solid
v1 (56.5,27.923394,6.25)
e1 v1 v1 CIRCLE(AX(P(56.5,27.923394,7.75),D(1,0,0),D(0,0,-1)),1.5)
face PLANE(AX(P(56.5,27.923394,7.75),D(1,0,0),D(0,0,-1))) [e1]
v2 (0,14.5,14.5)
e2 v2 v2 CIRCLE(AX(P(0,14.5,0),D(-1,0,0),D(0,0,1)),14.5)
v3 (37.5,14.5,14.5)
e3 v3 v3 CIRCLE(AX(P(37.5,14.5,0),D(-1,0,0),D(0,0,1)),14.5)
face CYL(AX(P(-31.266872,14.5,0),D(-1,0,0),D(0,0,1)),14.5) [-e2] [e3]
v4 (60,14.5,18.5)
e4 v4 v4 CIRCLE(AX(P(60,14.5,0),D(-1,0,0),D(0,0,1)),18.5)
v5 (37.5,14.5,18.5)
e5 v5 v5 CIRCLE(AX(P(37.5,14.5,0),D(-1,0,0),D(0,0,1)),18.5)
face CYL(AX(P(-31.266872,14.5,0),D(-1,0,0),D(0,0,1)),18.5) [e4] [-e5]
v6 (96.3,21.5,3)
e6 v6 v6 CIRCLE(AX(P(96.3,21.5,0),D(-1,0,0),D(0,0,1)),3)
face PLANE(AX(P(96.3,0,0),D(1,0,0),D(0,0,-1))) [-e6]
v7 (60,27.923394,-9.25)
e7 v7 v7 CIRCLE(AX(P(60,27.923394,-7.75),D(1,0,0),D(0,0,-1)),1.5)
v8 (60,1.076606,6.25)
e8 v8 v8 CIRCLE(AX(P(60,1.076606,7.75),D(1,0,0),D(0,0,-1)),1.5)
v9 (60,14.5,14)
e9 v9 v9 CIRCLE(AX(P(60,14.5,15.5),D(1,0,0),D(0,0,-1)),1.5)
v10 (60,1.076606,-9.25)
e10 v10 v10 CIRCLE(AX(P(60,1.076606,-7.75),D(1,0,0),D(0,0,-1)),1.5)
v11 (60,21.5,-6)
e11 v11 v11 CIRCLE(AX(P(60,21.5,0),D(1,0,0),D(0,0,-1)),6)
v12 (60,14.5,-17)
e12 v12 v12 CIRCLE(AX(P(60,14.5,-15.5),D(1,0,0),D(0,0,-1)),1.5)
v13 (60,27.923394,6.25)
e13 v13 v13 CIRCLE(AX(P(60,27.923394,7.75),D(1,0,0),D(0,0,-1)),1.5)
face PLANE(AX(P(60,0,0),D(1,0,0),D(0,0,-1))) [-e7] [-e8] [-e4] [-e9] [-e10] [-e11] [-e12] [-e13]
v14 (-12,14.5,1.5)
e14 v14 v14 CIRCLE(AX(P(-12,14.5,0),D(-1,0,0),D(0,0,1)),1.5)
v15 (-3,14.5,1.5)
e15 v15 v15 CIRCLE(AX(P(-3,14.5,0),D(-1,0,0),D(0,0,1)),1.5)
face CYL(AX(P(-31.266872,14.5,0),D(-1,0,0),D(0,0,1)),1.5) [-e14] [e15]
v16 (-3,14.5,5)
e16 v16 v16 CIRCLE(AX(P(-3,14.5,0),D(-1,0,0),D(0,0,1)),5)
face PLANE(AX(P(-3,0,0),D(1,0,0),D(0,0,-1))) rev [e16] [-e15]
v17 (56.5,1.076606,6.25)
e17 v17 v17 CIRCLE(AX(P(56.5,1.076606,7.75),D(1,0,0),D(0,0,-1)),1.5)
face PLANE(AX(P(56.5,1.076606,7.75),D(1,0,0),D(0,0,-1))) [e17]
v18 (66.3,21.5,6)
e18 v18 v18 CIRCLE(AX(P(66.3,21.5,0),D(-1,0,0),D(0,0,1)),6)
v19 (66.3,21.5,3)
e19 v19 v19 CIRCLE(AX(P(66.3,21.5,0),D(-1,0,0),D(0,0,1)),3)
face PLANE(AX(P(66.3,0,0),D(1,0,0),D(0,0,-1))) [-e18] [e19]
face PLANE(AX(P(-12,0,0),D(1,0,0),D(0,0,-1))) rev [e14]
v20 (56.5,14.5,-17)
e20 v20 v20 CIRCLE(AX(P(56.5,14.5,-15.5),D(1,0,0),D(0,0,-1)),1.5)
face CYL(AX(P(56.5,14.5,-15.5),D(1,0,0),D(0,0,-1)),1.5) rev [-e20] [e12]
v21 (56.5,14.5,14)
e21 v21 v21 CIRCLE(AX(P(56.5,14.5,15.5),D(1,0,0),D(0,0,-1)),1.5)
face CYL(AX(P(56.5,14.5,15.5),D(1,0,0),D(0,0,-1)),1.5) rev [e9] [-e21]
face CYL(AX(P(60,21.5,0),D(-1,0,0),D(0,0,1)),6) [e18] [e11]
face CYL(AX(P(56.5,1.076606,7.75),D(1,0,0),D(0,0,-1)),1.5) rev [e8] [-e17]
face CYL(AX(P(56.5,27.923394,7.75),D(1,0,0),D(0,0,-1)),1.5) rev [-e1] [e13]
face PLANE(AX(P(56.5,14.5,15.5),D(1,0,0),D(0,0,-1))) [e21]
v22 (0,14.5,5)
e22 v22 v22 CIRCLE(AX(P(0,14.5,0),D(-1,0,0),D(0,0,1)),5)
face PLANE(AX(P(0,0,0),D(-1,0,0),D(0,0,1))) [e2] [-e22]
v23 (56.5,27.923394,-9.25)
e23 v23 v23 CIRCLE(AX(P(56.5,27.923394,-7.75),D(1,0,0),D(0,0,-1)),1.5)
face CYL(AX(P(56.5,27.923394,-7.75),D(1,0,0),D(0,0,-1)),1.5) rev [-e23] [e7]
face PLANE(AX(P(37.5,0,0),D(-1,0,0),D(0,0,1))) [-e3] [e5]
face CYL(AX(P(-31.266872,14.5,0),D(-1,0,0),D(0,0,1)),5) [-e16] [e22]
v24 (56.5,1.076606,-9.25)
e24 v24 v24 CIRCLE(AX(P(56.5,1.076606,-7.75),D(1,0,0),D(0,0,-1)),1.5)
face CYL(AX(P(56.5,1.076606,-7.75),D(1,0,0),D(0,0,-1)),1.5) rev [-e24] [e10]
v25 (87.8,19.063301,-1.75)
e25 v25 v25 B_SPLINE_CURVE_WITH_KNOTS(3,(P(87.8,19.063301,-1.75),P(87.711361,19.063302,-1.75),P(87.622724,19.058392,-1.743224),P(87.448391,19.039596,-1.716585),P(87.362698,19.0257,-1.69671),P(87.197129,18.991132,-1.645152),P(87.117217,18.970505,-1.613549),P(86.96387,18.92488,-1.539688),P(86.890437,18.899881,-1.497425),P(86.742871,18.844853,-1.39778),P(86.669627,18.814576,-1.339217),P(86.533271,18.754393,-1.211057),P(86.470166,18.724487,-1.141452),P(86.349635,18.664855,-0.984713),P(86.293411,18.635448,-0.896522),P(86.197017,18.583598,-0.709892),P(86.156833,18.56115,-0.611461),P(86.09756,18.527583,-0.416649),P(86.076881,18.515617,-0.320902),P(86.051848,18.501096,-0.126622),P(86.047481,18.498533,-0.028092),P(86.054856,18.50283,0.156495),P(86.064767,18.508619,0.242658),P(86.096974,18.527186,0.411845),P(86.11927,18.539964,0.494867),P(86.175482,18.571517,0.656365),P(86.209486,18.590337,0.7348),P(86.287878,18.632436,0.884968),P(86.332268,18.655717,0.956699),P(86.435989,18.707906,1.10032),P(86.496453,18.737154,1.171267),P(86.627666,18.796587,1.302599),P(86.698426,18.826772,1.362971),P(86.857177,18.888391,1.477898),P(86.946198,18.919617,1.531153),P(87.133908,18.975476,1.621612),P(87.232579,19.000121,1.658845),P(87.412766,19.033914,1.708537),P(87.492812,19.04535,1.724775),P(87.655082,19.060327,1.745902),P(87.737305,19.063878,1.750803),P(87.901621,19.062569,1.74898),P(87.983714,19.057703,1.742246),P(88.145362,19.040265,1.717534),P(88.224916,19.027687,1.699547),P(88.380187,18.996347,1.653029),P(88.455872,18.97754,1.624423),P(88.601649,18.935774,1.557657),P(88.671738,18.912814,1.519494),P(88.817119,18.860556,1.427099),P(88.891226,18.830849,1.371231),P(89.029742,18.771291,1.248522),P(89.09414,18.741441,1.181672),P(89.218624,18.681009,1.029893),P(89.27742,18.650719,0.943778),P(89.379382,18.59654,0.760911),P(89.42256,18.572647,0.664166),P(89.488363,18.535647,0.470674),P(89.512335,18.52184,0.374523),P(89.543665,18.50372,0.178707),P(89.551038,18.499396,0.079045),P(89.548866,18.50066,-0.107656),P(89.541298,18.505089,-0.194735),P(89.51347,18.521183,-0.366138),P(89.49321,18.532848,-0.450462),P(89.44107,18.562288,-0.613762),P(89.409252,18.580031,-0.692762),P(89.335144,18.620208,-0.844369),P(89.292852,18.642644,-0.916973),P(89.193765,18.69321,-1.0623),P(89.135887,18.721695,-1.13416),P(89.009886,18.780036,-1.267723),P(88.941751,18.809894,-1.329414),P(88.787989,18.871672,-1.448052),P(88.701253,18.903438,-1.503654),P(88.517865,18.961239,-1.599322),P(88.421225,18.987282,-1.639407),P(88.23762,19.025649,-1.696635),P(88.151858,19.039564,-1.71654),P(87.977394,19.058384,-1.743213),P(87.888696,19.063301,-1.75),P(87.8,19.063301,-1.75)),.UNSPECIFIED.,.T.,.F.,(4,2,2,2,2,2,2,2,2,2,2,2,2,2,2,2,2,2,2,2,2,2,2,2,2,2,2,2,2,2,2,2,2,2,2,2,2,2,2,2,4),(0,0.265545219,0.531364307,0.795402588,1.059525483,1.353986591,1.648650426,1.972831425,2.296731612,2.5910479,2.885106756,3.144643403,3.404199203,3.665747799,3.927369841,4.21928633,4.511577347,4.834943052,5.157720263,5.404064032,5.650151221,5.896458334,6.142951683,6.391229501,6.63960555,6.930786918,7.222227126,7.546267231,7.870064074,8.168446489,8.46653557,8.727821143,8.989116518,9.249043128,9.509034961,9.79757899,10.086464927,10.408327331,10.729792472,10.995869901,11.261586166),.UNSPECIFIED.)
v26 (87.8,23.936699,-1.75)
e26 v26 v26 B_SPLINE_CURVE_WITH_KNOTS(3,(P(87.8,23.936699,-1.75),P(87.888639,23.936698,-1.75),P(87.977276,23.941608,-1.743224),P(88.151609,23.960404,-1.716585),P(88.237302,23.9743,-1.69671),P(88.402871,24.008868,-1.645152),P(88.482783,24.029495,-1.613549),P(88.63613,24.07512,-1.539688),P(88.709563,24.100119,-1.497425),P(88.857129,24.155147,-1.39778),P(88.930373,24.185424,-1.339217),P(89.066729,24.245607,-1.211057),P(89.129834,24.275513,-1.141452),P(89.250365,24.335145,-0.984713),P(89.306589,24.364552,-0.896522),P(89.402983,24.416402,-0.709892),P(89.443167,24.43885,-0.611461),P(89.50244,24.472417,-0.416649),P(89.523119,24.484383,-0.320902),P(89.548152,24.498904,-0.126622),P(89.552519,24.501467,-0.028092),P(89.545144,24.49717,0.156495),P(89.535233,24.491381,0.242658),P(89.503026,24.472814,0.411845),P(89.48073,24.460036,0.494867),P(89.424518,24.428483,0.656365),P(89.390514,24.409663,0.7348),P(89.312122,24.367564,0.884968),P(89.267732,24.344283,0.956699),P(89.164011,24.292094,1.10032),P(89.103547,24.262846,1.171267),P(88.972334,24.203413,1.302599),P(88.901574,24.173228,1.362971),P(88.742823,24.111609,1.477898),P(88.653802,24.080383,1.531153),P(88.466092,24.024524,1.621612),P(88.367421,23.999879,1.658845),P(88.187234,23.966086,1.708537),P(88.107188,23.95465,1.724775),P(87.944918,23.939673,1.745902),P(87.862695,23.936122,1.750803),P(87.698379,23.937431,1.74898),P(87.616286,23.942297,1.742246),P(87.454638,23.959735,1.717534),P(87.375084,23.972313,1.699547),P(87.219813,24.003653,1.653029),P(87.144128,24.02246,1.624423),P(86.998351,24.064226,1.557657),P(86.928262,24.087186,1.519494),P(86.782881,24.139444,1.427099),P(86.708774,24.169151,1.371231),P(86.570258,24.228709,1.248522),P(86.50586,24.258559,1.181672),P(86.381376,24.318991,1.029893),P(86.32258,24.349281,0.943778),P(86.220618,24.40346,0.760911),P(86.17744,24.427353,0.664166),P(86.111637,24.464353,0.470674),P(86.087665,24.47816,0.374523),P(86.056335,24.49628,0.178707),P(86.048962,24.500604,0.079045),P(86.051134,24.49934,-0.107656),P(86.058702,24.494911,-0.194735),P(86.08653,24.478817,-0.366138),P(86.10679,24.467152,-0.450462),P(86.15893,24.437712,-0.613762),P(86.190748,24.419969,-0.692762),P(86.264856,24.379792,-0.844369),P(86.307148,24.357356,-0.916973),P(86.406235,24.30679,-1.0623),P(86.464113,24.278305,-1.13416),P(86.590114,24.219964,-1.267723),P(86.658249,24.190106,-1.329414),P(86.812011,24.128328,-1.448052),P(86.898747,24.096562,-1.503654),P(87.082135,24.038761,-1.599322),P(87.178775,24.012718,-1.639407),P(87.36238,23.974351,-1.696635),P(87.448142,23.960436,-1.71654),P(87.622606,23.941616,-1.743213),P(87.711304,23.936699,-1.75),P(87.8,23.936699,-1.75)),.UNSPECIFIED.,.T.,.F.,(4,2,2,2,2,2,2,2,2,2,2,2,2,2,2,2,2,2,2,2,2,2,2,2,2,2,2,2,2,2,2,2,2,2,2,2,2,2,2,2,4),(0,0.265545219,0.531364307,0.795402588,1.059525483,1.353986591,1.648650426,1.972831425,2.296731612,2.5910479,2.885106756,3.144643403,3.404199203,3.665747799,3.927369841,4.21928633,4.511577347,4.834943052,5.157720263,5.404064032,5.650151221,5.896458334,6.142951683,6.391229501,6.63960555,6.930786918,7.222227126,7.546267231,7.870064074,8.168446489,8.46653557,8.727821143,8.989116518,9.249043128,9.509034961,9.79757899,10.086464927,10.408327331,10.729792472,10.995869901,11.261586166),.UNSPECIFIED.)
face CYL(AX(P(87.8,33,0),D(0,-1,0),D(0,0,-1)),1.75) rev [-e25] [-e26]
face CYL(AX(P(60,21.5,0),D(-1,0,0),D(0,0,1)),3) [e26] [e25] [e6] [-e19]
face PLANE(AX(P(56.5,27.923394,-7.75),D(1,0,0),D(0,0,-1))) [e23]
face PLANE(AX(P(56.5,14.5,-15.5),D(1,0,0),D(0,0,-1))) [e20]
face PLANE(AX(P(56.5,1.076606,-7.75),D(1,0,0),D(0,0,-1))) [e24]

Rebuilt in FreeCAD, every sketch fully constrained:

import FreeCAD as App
import Part
import Sketcher

doc = App.newDocument("Part")
body = doc.addObject("PartDesign::Body", "Body")

# Sketch on XY plane
sketch1 = doc.addObject("Sketcher::SketchObject", "Sketch")
body.addObject(sketch1)
sketch1.AttachmentSupport = (doc.XY_Plane, [""])
sketch1.MapMode = "FlatFace"
sketch1.addGeometry(Part.LineSegment(App.Vector(60, 14.5, 0), App.Vector(60, 33, 0)), False)
sketch1.addGeometry(Part.LineSegment(App.Vector(60, 33, 0), App.Vector(37.5, 33, 0)), False)
sketch1.addGeometry(Part.LineSegment(App.Vector(37.5, 33, 0), App.Vector(37.5, 29, 0)), False)
sketch1.addGeometry(Part.LineSegment(App.Vector(37.5, 29, 0), App.Vector(0, 29, 0)), False)
sketch1.addGeometry(Part.LineSegment(App.Vector(0, 29, 0), App.Vector(0, 19.5, 0)), False)
sketch1.addGeometry(Part.LineSegment(App.Vector(0, 19.5, 0), App.Vector(-3, 19.5, 0)), False)
sketch1.addGeometry(Part.LineSegment(App.Vector(-3, 19.5, 0), App.Vector(-3, 16, 0)), False)
sketch1.addGeometry(Part.LineSegment(App.Vector(-3, 16, 0), App.Vector(-12, 16, 0)), False)
sketch1.addGeometry(Part.LineSegment(App.Vector(-12, 16, 0), App.Vector(-12, 14.5, 0)), False)
sketch1.addGeometry(Part.LineSegment(App.Vector(-12, 14.5, 0), App.Vector(60, 14.5, 0)), False)
sketch1.addGeometry(Part.LineSegment(App.Vector(-12, 14.5, 0), App.Vector(60, 14.5, 0)), True)  # axis
sketch1.addConstraint(Sketcher.Constraint("Coincident", 0, 2, 1, 1))
sketch1.addConstraint(Sketcher.Constraint("Coincident", 1, 2, 2, 1))
sketch1.addConstraint(Sketcher.Constraint("Coincident", 2, 2, 3, 1))
sketch1.addConstraint(Sketcher.Constraint("Coincident", 3, 2, 4, 1))
sketch1.addConstraint(Sketcher.Constraint("Coincident", 4, 2, 5, 1))
sketch1.addConstraint(Sketcher.Constraint("Coincident", 5, 2, 6, 1))
sketch1.addConstraint(Sketcher.Constraint("Coincident", 6, 2, 7, 1))
sketch1.addConstraint(Sketcher.Constraint("Coincident", 7, 2, 8, 1))
sketch1.addConstraint(Sketcher.Constraint("Coincident", 8, 2, 9, 1))
sketch1.addConstraint(Sketcher.Constraint("Coincident", 9, 2, 0, 1))
sketch1.addConstraint(Sketcher.Constraint("Vertical", 0))
sketch1.addConstraint(Sketcher.Constraint("Horizontal", 1))
sketch1.addConstraint(Sketcher.Constraint("Vertical", 2))
sketch1.addConstraint(Sketcher.Constraint("Horizontal", 3))
sketch1.addConstraint(Sketcher.Constraint("Vertical", 4))
sketch1.addConstraint(Sketcher.Constraint("Horizontal", 5))
sketch1.addConstraint(Sketcher.Constraint("Vertical", 6))
sketch1.addConstraint(Sketcher.Constraint("Horizontal", 7))
sketch1.addConstraint(Sketcher.Constraint("Vertical", 8))
sketch1.addConstraint(Sketcher.Constraint("Horizontal", 9))
sketch1.addConstraint(Sketcher.Constraint("Horizontal", 10))
sketch1.addConstraint(Sketcher.Constraint("Coincident", 10, 1, 8, 2))
sketch1.addConstraint(Sketcher.Constraint("PointOnObject", 3, 2, -2))
sketch1.addConstraint(Sketcher.Constraint("Vertical", 0, 2, 10, 2))
sketch1.addConstraint(Sketcher.Constraint("DistanceX", 5, 2, 5, 1, 3.0))
sketch1.addConstraint(Sketcher.Constraint("DistanceX", 7, 2, 7, 1, 9.0))
sketch1.addConstraint(Sketcher.Constraint("DistanceX", 9, 1, 9, 2, 72.0))
sketch1.addConstraint(Sketcher.Constraint("DistanceY", 2, 2, 2, 1, 4.0))
sketch1.addConstraint(Sketcher.Constraint("DistanceX", 1, 2, 1, 1, 22.5))
sketch1.addConstraint(Sketcher.Constraint("DistanceY", 0, 1, 0, 2, 18.5))
sketch1.addConstraint(Sketcher.Constraint("DistanceY", 4, 2, 4, 1, 9.5))
sketch1.addConstraint(Sketcher.Constraint("DistanceY", 6, 2, 6, 1, 3.5))
sketch1.addConstraint(Sketcher.Constraint("DistanceY", -1, 1, 0, 2, 33.0))
revolution = doc.addObject("PartDesign::Revolution", "Revolution")
body.addObject(revolution)
revolution.Profile = sketch1
revolution.ReferenceAxis = (sketch1, ["Axis0"])
revolution.Angle = 360

# Sketch on XY plane
sketch2 = doc.addObject("Sketcher::SketchObject", "Sketch001")
body.addObject(sketch2)
sketch2.AttachmentSupport = (doc.XY_Plane, [""])
sketch2.MapMode = "FlatFace"
sketch2.addGeometry(Part.LineSegment(App.Vector(60, 27.5, 0), App.Vector(60, 21.5, 0)), False)
sketch2.addGeometry(Part.LineSegment(App.Vector(60, 21.5, 0), App.Vector(96.3, 21.5, 0)), False)
sketch2.addGeometry(Part.LineSegment(App.Vector(96.3, 21.5, 0), App.Vector(96.3, 24.5, 0)), False)
sketch2.addGeometry(Part.LineSegment(App.Vector(96.3, 24.5, 0), App.Vector(66.3, 24.5, 0)), False)
sketch2.addGeometry(Part.LineSegment(App.Vector(66.3, 24.5, 0), App.Vector(66.3, 27.5, 0)), False)
sketch2.addGeometry(Part.LineSegment(App.Vector(66.3, 27.5, 0), App.Vector(60, 27.5, 0)), False)
sketch2.addGeometry(Part.LineSegment(App.Vector(60, 21.5, 0), App.Vector(96.3, 21.5, 0)), True)  # axis
sketch2.addConstraint(Sketcher.Constraint("Coincident", 0, 2, 1, 1))
sketch2.addConstraint(Sketcher.Constraint("Coincident", 1, 2, 2, 1))
sketch2.addConstraint(Sketcher.Constraint("Coincident", 2, 2, 3, 1))
sketch2.addConstraint(Sketcher.Constraint("Coincident", 3, 2, 4, 1))
sketch2.addConstraint(Sketcher.Constraint("Coincident", 4, 2, 5, 1))
sketch2.addConstraint(Sketcher.Constraint("Coincident", 5, 2, 0, 1))
sketch2.addConstraint(Sketcher.Constraint("Vertical", 0))
sketch2.addConstraint(Sketcher.Constraint("Horizontal", 1))
sketch2.addConstraint(Sketcher.Constraint("Vertical", 2))
sketch2.addConstraint(Sketcher.Constraint("Horizontal", 3))
sketch2.addConstraint(Sketcher.Constraint("Vertical", 4))
sketch2.addConstraint(Sketcher.Constraint("Horizontal", 5))
sketch2.addConstraint(Sketcher.Constraint("Horizontal", 6))
sketch2.addConstraint(Sketcher.Constraint("Coincident", 6, 1, 0, 2))
sketch2.addConstraint(Sketcher.Constraint("Vertical", 2, 2, 6, 2))
sketch2.addConstraint(Sketcher.Constraint("Equal", 2, 4))
sketch2.addConstraint(Sketcher.Constraint("DistanceX", 3, 2, 3, 1, 30.0))
sketch2.addConstraint(Sketcher.Constraint("DistanceY", 0, 2, 0, 1, 6.0))
sketch2.addConstraint(Sketcher.Constraint("DistanceX", 1, 1, 1, 2, 36.3))
sketch2.addConstraint(Sketcher.Constraint("DistanceX", -1, 1, 0, 2, 60.0))
sketch2.addConstraint(Sketcher.Constraint("DistanceY", -1, 1, 0, 2, 21.5))
revolution2 = doc.addObject("PartDesign::Revolution", "Revolution001")
body.addObject(revolution2)
revolution2.Profile = sketch2
revolution2.ReferenceAxis = (sketch2, ["Axis0"])
revolution2.Angle = 360

# Sketch on YZ plane
sketch3 = doc.addObject("Sketcher::SketchObject", "Sketch002")
body.addObject(sketch3)
sketch3.AttachmentSupport = (doc.YZ_Plane, [""])
sketch3.MapMode = "FlatFace"
sketch3.AttachmentOffset = App.Placement(App.Vector(0, 0, 60), App.Rotation())
sketch3.addGeometry(Part.Circle(App.Vector(14.5, 15.5, 0), App.Vector(0, 0, 1), 1.5), False)
sketch3.addGeometry(Part.Circle(App.Vector(27.9, 7.8, 0), App.Vector(0, 0, 1), 1.5), False)
sketch3.addGeometry(Part.Circle(App.Vector(27.9, -7.8, 0), App.Vector(0, 0, 1), 1.5), False)
sketch3.addGeometry(Part.Circle(App.Vector(14.5, -15.5, 0), App.Vector(0, 0, 1), 1.5), False)
sketch3.addGeometry(Part.Circle(App.Vector(1.1, -7.8, 0), App.Vector(0, 0, 1), 1.5), False)
sketch3.addGeometry(Part.Circle(App.Vector(1.1, 7.8, 0), App.Vector(0, 0, 1), 1.5), False)
sketch3.addConstraint(Sketcher.Constraint("Equal", 0, 1))
sketch3.addConstraint(Sketcher.Constraint("Equal", 1, 2))
sketch3.addConstraint(Sketcher.Constraint("Equal", 2, 3))
sketch3.addConstraint(Sketcher.Constraint("Equal", 3, 4))
sketch3.addConstraint(Sketcher.Constraint("Equal", 4, 5))
sketch3.addConstraint(Sketcher.Constraint("Symmetric", 1, 3, 2, 3, -1))
sketch3.addConstraint(Sketcher.Constraint("Symmetric", 0, 3, 3, 3, -1))
sketch3.addConstraint(Sketcher.Constraint("Symmetric", 4, 3, 5, 3, -1))
sketch3.addConstraint(Sketcher.Constraint("Horizontal", 2, 3, 4, 3))
sketch3.addConstraint(Sketcher.Constraint("Diameter", 0, 3.0))
sketch3.addConstraint(Sketcher.Constraint("DistanceY", 3, 3, 0, 3, 31.0))
sketch3.addConstraint(Sketcher.Constraint("DistanceX", -1, 1, 0, 3, 14.5))
sketch3.addConstraint(Sketcher.Constraint("DistanceY", 2, 3, 1, 3, 15.5))
sketch3.addConstraint(Sketcher.Constraint("DistanceX", -1, 1, 1, 3, 27.923394))
sketch3.addConstraint(Sketcher.Constraint("DistanceX", -1, 1, 4, 3, 1.076606))
pocket1 = doc.addObject("PartDesign::Pocket", "Pocket")
body.addObject(pocket1)
pocket1.Profile = sketch3
pocket1.Length = 3.5

# Sketch on XZ plane
sketch4 = doc.addObject("Sketcher::SketchObject", "Sketch003")
body.addObject(sketch4)
sketch4.AttachmentSupport = (doc.XZ_Plane, [""])
sketch4.MapMode = "FlatFace"
sketch4.addGeometry(Part.Circle(App.Vector(87.8, 0, 0), App.Vector(0, 0, 1), 1.8), False)
sketch4.addConstraint(Sketcher.Constraint("PointOnObject", 0, 3, -1))
sketch4.addConstraint(Sketcher.Constraint("Diameter", 0, 3.5))
sketch4.addConstraint(Sketcher.Constraint("DistanceX", -1, 1, 0, 3, 87.8))
pocket2 = doc.addObject("PartDesign::Pocket", "Pocket001")
body.addObject(pocket2)
pocket2.Profile = sketch4
pocket2.Type = "ThroughAll"

doc.recompute()
